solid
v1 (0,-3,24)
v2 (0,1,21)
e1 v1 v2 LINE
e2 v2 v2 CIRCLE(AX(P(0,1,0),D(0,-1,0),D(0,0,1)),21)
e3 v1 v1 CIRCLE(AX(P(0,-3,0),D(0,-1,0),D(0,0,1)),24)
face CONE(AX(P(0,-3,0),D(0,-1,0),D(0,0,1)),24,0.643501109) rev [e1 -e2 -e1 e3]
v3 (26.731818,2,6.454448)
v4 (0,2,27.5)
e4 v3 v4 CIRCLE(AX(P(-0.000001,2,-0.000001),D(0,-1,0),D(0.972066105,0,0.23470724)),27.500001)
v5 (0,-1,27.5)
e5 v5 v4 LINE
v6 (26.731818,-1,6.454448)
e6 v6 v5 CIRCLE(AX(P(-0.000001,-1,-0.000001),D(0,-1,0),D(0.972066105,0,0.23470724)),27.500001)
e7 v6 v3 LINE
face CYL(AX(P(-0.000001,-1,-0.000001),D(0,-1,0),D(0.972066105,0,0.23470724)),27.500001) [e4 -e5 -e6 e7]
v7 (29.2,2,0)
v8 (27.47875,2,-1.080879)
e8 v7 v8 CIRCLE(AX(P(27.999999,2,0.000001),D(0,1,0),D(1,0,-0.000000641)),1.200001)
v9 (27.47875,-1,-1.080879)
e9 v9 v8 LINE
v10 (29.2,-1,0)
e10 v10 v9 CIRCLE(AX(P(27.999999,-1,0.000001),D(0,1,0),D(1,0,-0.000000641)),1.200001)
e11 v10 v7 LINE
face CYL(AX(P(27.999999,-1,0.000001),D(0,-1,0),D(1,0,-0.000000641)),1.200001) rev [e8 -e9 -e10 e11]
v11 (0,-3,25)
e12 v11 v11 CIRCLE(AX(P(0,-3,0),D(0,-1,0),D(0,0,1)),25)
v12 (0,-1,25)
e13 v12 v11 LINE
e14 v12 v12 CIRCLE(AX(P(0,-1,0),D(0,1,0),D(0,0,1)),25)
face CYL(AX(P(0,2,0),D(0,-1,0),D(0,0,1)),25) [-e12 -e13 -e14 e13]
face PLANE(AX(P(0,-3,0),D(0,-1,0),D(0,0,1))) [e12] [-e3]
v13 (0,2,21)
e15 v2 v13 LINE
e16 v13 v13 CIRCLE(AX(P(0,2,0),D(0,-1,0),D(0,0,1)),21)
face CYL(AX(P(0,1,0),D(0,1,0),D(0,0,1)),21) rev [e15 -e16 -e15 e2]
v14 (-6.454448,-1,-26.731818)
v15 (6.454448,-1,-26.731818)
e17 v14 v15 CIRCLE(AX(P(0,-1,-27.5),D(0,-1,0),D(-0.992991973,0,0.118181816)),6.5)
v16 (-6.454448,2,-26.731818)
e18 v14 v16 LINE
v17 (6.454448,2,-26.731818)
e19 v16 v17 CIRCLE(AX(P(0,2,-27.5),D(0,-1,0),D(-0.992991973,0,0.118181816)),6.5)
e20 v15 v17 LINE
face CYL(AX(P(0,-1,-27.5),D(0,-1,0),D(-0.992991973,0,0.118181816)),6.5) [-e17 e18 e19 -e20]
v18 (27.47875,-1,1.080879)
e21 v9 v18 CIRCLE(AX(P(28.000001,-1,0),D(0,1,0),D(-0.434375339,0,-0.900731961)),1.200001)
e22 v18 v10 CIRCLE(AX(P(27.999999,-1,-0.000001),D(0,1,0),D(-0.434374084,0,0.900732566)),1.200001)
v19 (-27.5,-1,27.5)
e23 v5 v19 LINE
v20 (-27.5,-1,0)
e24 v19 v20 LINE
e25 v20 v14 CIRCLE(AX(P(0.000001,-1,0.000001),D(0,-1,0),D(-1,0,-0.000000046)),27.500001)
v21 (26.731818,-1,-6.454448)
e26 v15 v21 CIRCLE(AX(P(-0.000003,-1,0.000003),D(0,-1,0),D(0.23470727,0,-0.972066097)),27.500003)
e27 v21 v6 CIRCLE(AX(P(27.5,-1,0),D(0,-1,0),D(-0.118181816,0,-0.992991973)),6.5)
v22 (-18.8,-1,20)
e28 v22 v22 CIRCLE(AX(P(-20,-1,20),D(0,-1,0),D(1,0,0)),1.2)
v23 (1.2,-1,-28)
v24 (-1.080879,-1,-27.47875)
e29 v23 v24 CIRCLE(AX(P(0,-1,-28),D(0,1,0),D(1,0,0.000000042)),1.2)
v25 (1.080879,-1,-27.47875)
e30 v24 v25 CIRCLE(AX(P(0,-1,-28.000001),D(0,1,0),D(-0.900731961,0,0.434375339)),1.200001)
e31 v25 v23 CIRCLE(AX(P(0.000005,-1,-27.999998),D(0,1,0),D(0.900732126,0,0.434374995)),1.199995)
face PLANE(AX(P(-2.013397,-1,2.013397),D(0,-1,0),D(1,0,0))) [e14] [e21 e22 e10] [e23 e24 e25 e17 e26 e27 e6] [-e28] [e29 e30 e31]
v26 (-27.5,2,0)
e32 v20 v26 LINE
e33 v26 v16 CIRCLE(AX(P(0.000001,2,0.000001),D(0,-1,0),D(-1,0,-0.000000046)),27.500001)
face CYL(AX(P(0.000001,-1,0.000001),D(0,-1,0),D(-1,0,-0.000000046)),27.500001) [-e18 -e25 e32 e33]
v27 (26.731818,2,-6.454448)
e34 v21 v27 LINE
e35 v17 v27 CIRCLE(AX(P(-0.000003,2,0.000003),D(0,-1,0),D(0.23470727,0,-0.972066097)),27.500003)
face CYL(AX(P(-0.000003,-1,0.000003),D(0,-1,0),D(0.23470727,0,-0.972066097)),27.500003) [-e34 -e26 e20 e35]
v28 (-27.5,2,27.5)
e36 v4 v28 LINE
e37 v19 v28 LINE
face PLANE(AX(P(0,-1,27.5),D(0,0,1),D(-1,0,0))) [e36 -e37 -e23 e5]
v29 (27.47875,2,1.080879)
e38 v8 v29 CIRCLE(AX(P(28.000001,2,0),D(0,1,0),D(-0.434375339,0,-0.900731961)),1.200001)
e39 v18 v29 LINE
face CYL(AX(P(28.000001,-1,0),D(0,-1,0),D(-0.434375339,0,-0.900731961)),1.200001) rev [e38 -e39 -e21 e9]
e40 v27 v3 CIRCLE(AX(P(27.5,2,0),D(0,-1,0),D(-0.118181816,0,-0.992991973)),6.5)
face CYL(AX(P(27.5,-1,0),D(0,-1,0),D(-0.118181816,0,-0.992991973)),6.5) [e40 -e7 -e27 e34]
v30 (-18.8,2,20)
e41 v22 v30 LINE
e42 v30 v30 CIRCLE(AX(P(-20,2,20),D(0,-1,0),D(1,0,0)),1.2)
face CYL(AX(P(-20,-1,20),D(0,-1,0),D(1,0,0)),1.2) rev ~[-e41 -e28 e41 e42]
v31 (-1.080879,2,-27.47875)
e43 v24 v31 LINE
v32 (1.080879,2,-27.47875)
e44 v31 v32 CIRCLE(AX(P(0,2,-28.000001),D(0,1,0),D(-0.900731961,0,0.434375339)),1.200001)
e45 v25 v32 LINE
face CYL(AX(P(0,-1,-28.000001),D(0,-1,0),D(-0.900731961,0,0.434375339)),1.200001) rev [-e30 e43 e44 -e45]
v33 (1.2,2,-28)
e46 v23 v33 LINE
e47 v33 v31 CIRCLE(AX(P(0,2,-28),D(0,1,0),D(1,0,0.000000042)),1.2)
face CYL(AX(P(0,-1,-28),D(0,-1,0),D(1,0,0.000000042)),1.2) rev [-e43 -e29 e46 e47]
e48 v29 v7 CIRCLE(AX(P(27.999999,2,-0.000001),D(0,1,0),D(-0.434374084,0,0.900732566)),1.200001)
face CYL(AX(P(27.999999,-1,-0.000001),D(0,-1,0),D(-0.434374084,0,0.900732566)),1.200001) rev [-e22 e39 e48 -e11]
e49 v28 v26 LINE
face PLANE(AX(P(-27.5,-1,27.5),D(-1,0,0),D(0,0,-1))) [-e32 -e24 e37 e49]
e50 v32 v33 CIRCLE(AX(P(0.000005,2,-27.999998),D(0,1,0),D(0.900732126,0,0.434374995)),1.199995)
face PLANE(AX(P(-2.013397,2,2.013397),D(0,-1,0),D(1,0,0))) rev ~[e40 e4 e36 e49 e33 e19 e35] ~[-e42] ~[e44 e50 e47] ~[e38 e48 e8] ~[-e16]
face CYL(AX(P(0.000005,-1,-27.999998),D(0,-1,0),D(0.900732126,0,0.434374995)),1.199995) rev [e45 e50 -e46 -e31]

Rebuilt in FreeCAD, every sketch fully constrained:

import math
import FreeCAD as App
import Part
import Sketcher
from FreeCAD import Vector

doc = App.newDocument("Part")
body = doc.addObject("PartDesign::Body", "Body")

# Sketch on YZ plane
sketch1 = body.newObject("Sketcher::SketchObject", "Sketch")
sketch1.AttachmentSupport = (doc.getObject("YZ_Plane"), [""])
sketch1.MapMode = "FlatFace"
sketch1.addGeometry(Part.LineSegment(Vector(2, 25, 0), Vector(-3, 25, 0)), False)
sketch1.addGeometry(Part.LineSegment(Vector(-3, 25, 0), Vector(-3, 24, 0)), False)
sketch1.addGeometry(Part.LineSegment(Vector(-3, 24, 0), Vector(1, 21, 0)), False)
sketch1.addGeometry(Part.LineSegment(Vector(1, 21, 0), Vector(2, 21, 0)), False)
sketch1.addGeometry(Part.LineSegment(Vector(2, 21, 0), Vector(2, 25, 0)), False)
sketch1.addConstraint(Sketcher.Constraint("Coincident", 0, 2, 1, 1))
sketch1.addConstraint(Sketcher.Constraint("Coincident", 1, 2, 2, 1))
sketch1.addConstraint(Sketcher.Constraint("Coincident", 2, 2, 3, 1))
sketch1.addConstraint(Sketcher.Constraint("Coincident", 3, 2, 4, 1))
sketch1.addConstraint(Sketcher.Constraint("Coincident", 4, 2, 0, 1))
sketch1.addConstraint(Sketcher.Constraint("Horizontal", 0))
sketch1.addConstraint(Sketcher.Constraint("Vertical", 1))
sketch1.addConstraint(Sketcher.Constraint("Horizontal", 3))
sketch1.addConstraint(Sketcher.Constraint("Vertical", 4))
sketch1.addConstraint(Sketcher.Constraint("Equal", 3, 1))
sketch1.addConstraint(Sketcher.Constraint("DistanceX", 0, 2, 0, 1, 5.0))
sketch1.addConstraint(Sketcher.Constraint("DistanceX", 3, 1, 3, 2, 1.0))
sketch1.addConstraint(Sketcher.Constraint("DistanceY", 4, 1, 4, 2, 4.0))
sketch1.addConstraint(Sketcher.Constraint("DistanceX", 0, 2, -1, 1, 3.0))
sketch1.addConstraint(Sketcher.Constraint("DistanceY", -1, 1, 0, 2, 25.0))
revolution = body.newObject("PartDesign::Revolution", "Revolution")
revolution.Profile = sketch1
revolution.ReferenceAxis = (sketch1, ["H_Axis"])
revolution.Angle = 360

# Sketch on XZ plane
sketch2 = body.newObject("Sketcher::SketchObject", "Sketch001")
sketch2.AttachmentSupport = (doc.getObject("XZ_Plane"), [""])
sketch2.MapMode = "FlatFace"
sketch2.AttachmentOffset = App.Placement(Vector(0, 0, 1), App.Rotation())
sketch2.addGeometry(Part.ArcOfCircle(Part.Circle(Vector(0, 0, 0), Vector(0, 0, 1), 27.5), math.radians(14), math.radians(90)), False)
sketch2.addGeometry(Part.LineSegment(Vector(0, 27.5, 0), Vector(-27.5, 27.5, 0)), False)
sketch2.addGeometry(Part.LineSegment(Vector(-27.5, 27.5, 0), Vector(-27.5, 0, 0)), False)
sketch2.addGeometry(Part.ArcOfCircle(Part.Circle(Vector(0, 0, 0), Vector(0, 0, 1), 27.5), math.radians(-180), math.radians(-104)), False)
sketch2.addGeometry(Part.ArcOfCircle(Part.Circle(Vector(0, -27.5, 0), Vector(0, 0, 1), 6.5), math.radians(173), math.radians(367)), False)
sketch2.addGeometry(Part.ArcOfCircle(Part.Circle(Vector(0, 0, 0), Vector(0, 0, 1), 27.5), math.radians(-76), math.radians(-14)), False)
sketch2.addGeometry(Part.ArcOfCircle(Part.Circle(Vector(27.5, 0, 0), Vector(0, 0, 1), 6.5), math.radians(-97), math.radians(97)), False)
sketch2.addGeometry(Part.ArcOfCircle(Part.Circle(Vector(0, -28, 0), Vector(0, 0, 1), 1.2), math.radians(26), math.radians(154)), False)
sketch2.addGeometry(Part.ArcOfCircle(Part.Circle(Vector(0, -28, 0), Vector(0, 0, 1), 1.2), math.radians(0), math.radians(26)), False)
sketch2.addGeometry(Part.ArcOfCircle(Part.Circle(Vector(0, -28, 0), Vector(0, 0, 1), 1.2), math.radians(154), math.radians(360)), False)
sketch2.addGeometry(Part.ArcOfCircle(Part.Circle(Vector(28, 0, 0), Vector(0, 0, 1), 1.2), math.radians(116), math.radians(244)), False)
sketch2.addGeometry(Part.ArcOfCircle(Part.Circle(Vector(28, 0, 0), Vector(0, 0, 1), 1.2), math.radians(0), math.radians(116)), False)
sketch2.addGeometry(Part.ArcOfCircle(Part.Circle(Vector(28, 0, 0), Vector(0, 0, 1), 1.2), math.radians(-116), math.radians(0)), False)
sketch2.addGeometry(Part.Circle(Vector(-20, 20, 0), Vector(0, 0, 1), 1.2), False)
sketch2.addGeometry(Part.Circle(Vector(0, 0, 0), Vector(0, 0, 1), 25), False)
sketch2.addConstraint(Sketcher.Constraint("Tangent", 0, 2, 1, 1))
sketch2.addConstraint(Sketcher.Constraint("Coincident", 1, 2, 2, 1))
sketch2.addConstraint(Sketcher.Constraint("Tangent", 2, 2, 3, 1))
sketch2.addConstraint(Sketcher.Constraint("Coincident", 3, 2, 4, 1))
sketch2.addConstraint(Sketcher.Constraint("Coincident", 4, 2, 5, 1))
sketch2.addConstraint(Sketcher.Constraint("Coincident", 5, 2, 6, 1))
sketch2.addConstraint(Sketcher.Constraint("Coincident", 6, 2, 0, 1))
sketch2.addConstraint(Sketcher.Constraint("Tangent", 7, 1, 8, 2))
sketch2.addConstraint(Sketcher.Constraint("Tangent", 8, 1, 9, 2))
sketch2.addConstraint(Sketcher.Constraint("Tangent", 9, 1, 7, 2))
sketch2.addConstraint(Sketcher.Constraint("Tangent", 10, 1, 11, 2))
sketch2.addConstraint(Sketcher.Constraint("Tangent", 11, 1, 12, 2))
sketch2.addConstraint(Sketcher.Constraint("Tangent", 12, 1, 10, 2))
sketch2.addConstraint(Sketcher.Constraint("Horizontal", 1))
sketch2.addConstraint(Sketcher.Constraint("Vertical", 2))
sketch2.addConstraint(Sketcher.Constraint("Coincident", 0, 3, -1, 1))
sketch2.addConstraint(Sketcher.Constraint("Coincident", 3, 3, -1, 1))
sketch2.addConstraint(Sketcher.Constraint("Coincident", 5, 3, -1, 1))
sketch2.addConstraint(Sketcher.Constraint("Coincident", 14, 3, -1, 1))
sketch2.addConstraint(Sketcher.Constraint("Equal", 0, 3))
sketch2.addConstraint(Sketcher.Constraint("Equal", 3, 5))
sketch2.addConstraint(Sketcher.Constraint("Equal", 4, 6))
sketch2.addConstraint(Sketcher.Constraint("Equal", 9, 10))
sketch2.addConstraint(Sketcher.Constraint("Equal", 12, 13))
sketch2.addConstraint(Sketcher.Constraint("Symmetric", 7, 1, 9, 1, -2))
sketch2.addConstraint(Sketcher.Constraint("Symmetric", 10, 1, 12, 1, -1))
sketch2.addConstraint(Sketcher.Constraint("PointOnObject", 4, 3, -2))
sketch2.addConstraint(Sketcher.Constraint("PointOnObject", 6, 3, -1))
sketch2.addConstraint(Sketcher.Constraint("PointOnObject", 11, 1, -1))
sketch2.addConstraint(Sketcher.Constraint("Horizontal", 9, 3, 8, 1))
sketch2.addConstraint(Sketcher.Constraint("Diameter", 14, 50.0))
sketch2.addConstraint(Sketcher.Constraint("Diameter", 13, 2.4))
sketch2.addConstraint(Sketcher.Constraint("Radius", 0, 27.500001))
sketch2.addConstraint(Sketcher.Constraint("Radius", 4, 6.5))
sketch2.addConstraint(Sketcher.Constraint("DistanceY", 7, 3, -1, 1, 28.000001))
sketch2.addConstraint(Sketcher.Constraint("DistanceX", -1, 1, 10, 3, 28.000001))
sketch2.addConstraint(Sketcher.Constraint("DistanceX", 13, 3, -1, 1, 20.0))
sketch2.addConstraint(Sketcher.Constraint("DistanceY", -1, 1, 13, 3, 20.0))
sketch2.addConstraint(Sketcher.Constraint("DistanceY", 4, 3, -1, 1, 27.5))
sketch2.addConstraint(Sketcher.Constraint("DistanceX", -1, 1, 6, 3, 27.5))
sketch2.addConstraint(Sketcher.Constraint("DistanceX", -1, 1, 7, 1, 1.080879))
sketch2.addConstraint(Sketcher.Constraint("DistanceX", -1, 1, 10, 1, 27.47875))
pad1 = body.newObject("PartDesign::Pad", "Pad")
pad1.Profile = sketch2
pad1.Length = 3
pad1.Reversed = True

doc.recompute()
